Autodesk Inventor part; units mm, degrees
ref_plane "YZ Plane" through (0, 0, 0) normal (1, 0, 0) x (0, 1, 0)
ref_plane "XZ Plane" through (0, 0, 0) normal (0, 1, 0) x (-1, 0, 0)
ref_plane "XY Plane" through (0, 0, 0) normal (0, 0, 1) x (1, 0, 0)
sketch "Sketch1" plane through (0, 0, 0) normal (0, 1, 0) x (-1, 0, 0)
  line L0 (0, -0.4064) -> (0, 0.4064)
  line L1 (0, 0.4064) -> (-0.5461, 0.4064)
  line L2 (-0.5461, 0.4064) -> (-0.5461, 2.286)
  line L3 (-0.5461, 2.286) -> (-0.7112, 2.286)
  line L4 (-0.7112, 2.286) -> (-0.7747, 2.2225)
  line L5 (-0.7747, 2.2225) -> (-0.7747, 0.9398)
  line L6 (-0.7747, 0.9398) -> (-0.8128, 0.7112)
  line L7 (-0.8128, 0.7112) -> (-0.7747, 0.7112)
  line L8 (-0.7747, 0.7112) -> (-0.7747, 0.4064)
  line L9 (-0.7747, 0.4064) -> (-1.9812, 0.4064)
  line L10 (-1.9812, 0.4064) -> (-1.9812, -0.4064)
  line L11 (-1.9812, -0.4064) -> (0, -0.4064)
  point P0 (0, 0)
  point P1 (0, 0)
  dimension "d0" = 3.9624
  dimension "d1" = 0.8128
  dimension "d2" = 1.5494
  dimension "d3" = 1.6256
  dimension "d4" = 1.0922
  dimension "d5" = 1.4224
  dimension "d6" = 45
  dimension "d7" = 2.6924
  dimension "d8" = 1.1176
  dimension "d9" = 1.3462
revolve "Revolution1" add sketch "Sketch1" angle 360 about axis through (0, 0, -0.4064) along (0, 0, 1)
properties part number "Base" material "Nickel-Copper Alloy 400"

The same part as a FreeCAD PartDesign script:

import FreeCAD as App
import Part
import Sketcher
from FreeCAD import Vector
Q = App.Units.Quantity

doc = App.newDocument("Part")
body = doc.addObject("PartDesign::Body", "Body")

# Sketch on XZ plane
sketch1 = doc.addObject("Sketcher::SketchObject", "Sketch")
body.addObject(sketch1)
sketch1.AttachmentSupport = (doc.XZ_Plane, [""])
sketch1.MapMode = "FlatFace"
sketch1.addGeometry([
    Part.LineSegment(Vector(1.981, -0.406, 0), Vector(0, -0.406, 0)),  # 0
    Part.LineSegment(Vector(0, -0.406, 0), Vector(0, 0.406, 0)),  # 1
    Part.LineSegment(Vector(0, 0.406, 0), Vector(0.546, 0.406, 0)),  # 2
    Part.LineSegment(Vector(0.546, 0.406, 0), Vector(0.546, 2.286, 0)),  # 3
    Part.LineSegment(Vector(0.546, 2.286, 0), Vector(0.711, 2.286, 0)),  # 4
    Part.LineSegment(Vector(0.711, 2.286, 0), Vector(0.775, 2.223, 0)),  # 5
    Part.LineSegment(Vector(0.775, 2.223, 0), Vector(0.775, 0.94, 0)),  # 6
    Part.LineSegment(Vector(0.775, 0.94, 0), Vector(0.813, 0.711, 0)),  # 7
    Part.LineSegment(Vector(0.813, 0.711, 0), Vector(0.775, 0.711, 0)),  # 8
    Part.LineSegment(Vector(0.775, 0.711, 0), Vector(0.775, 0.406, 0)),  # 9
    Part.LineSegment(Vector(0.775, 0.406, 0), Vector(1.981, 0.406, 0)),  # 10
    Part.LineSegment(Vector(1.981, 0.406, 0), Vector(1.981, -0.406, 0)),  # 11
], False)
sketch1.addConstraint([
    Sketcher.Constraint("Coincident", 0, 2, 1, 1),
    Sketcher.Constraint("Coincident", 1, 2, 2, 1),
    Sketcher.Constraint("Coincident", 2, 2, 3, 1),
    Sketcher.Constraint("Coincident", 3, 2, 4, 1),
    Sketcher.Constraint("Coincident", 4, 2, 5, 1),
    Sketcher.Constraint("Coincident", 5, 2, 6, 1),
    Sketcher.Constraint("Coincident", 6, 2, 7, 1),
    Sketcher.Constraint("Coincident", 7, 2, 8, 1),
    Sketcher.Constraint("Coincident", 8, 2, 9, 1),
    Sketcher.Constraint("Coincident", 9, 2, 10, 1),
    Sketcher.Constraint("Coincident", 10, 2, 11, 1),
    Sketcher.Constraint("Coincident", 11, 2, 0, 1),
    Sketcher.Constraint("Horizontal", 0),
    Sketcher.Constraint("Vertical", 1),
    Sketcher.Constraint("Horizontal", 2),
    Sketcher.Constraint("Vertical", 3),
    Sketcher.Constraint("Horizontal", 4),
    Sketcher.Constraint("Vertical", 6),
    Sketcher.Constraint("Horizontal", 8),
    Sketcher.Constraint("Vertical", 9),
    Sketcher.Constraint("Horizontal", 10),
    Sketcher.Constraint("Vertical", 11),
    Sketcher.Constraint("Symmetric", 0, 2, 1, 2, -1, 1),
    Sketcher.Constraint("Horizontal", 2, 2, 9, 2),
    Sketcher.Constraint("Vertical", 6, 2, 8, 2),
    Sketcher.Constraint("Angle", 5, Q("-45 deg")),
    Sketcher.Constraint("DistanceY", 1, 1, 1, 2, Q("0.032 in")),
    Sketcher.Constraint("DistanceX", -1, 1, 7, 2, Q("0.032 in")),
    Sketcher.Constraint("DistanceY", 0, 2, 3, 2, Q("0.106 in")),
    Sketcher.Constraint("DistanceY", 6, 2, 4, 2, Q("0.053 in")),
    Sketcher.Constraint("DistanceY", 0, 2, 7, 2, Q("0.044 in")),
    Sketcher.Constraint("DistanceX", 0, 2, 0, 1, Q("0.078 in")),
    Sketcher.Constraint("DistanceX", 2, 1, 2, 2, Q("0.0215 in")),
    Sketcher.Constraint("DistanceX", 4, 1, 4, 2, Q("0.0065 in")),
    Sketcher.Constraint("DistanceX", 8, 2, 8, 1, Q("0.0015 in")),
])
revolution = doc.addObject("PartDesign::Revolution", "Revolution")
body.addObject(revolution)
revolution.Profile = sketch1
revolution.ReferenceAxis = (sketch1, ["V_Axis"])
revolution.Angle = 360

doc.recompute()
